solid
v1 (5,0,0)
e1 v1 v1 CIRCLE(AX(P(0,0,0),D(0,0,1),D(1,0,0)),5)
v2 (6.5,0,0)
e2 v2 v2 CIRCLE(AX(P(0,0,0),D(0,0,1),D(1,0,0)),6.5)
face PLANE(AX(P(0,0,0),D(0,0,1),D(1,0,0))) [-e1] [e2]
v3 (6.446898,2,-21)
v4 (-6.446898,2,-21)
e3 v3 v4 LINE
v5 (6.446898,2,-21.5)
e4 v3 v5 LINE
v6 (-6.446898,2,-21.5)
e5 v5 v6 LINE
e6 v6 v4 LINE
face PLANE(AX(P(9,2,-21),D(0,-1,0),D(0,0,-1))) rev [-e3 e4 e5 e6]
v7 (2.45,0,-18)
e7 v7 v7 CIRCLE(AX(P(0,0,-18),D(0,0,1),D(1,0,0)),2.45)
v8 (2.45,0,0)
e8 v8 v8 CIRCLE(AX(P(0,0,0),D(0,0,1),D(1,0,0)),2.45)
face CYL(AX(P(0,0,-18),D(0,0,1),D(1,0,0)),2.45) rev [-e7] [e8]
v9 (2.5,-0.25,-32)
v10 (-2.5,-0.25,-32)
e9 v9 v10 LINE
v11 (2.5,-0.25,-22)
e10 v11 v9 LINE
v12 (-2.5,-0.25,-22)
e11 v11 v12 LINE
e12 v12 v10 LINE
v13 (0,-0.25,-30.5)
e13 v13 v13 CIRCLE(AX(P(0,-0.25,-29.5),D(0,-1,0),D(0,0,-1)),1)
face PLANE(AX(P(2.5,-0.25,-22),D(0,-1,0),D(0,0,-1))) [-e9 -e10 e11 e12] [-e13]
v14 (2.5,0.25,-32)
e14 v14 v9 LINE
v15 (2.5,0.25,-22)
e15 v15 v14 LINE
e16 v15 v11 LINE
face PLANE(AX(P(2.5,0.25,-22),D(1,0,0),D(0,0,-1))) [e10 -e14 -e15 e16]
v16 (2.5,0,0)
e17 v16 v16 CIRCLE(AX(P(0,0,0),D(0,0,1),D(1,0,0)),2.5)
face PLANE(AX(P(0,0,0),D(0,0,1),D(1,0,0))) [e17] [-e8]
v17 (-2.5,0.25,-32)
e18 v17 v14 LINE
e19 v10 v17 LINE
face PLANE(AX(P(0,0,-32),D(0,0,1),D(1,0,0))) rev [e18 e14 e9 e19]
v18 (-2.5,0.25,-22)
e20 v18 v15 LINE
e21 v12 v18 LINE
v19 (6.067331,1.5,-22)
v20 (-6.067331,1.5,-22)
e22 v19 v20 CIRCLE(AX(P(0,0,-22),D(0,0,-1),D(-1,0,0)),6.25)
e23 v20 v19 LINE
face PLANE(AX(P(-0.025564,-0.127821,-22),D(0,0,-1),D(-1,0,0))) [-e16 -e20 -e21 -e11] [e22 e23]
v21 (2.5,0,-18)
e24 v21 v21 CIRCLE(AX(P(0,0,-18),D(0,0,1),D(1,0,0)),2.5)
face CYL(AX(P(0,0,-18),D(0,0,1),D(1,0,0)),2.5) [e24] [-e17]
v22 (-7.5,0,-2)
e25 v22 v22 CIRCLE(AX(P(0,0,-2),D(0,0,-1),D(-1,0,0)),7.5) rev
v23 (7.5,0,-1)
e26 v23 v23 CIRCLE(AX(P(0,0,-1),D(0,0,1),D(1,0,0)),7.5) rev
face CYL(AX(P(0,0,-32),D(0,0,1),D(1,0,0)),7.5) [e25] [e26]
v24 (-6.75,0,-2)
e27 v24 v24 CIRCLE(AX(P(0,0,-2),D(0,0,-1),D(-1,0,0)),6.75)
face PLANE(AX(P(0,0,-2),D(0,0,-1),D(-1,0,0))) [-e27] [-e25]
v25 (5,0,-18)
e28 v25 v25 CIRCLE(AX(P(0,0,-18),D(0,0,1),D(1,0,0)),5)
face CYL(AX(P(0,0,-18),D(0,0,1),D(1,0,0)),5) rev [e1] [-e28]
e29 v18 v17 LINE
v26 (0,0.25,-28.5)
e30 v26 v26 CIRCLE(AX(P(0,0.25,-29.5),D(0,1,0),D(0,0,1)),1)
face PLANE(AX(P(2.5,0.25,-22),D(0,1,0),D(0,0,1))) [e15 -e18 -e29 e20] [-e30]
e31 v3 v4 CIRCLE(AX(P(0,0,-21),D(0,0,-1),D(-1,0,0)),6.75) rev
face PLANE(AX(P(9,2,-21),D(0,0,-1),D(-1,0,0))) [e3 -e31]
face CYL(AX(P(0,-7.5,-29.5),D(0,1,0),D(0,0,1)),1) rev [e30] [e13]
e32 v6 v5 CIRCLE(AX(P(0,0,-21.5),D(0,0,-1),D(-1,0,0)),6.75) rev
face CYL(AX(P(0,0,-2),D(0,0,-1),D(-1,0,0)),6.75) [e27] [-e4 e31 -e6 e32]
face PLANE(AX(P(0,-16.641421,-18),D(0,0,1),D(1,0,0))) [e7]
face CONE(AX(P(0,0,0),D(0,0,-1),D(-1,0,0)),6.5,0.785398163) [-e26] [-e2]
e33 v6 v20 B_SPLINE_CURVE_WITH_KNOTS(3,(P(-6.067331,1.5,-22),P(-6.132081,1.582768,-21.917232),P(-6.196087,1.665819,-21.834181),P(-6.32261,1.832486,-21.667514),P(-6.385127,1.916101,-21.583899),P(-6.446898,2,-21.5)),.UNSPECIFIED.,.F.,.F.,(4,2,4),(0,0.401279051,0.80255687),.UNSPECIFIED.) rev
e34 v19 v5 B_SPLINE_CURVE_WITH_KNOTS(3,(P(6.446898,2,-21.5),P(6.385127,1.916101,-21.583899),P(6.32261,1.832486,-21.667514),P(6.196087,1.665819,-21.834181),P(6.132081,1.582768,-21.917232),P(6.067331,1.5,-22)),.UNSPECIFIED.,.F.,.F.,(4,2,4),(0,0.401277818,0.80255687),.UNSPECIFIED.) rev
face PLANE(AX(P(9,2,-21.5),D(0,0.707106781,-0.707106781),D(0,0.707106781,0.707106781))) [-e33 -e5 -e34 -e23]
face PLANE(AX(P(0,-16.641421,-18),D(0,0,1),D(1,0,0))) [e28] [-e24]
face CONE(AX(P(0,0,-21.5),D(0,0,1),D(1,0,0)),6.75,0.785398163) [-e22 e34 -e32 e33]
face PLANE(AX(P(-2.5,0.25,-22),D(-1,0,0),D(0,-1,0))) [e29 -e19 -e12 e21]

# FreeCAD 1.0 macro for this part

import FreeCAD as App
import Part
import Sketcher
from FreeCAD import Vector


def edges_at(feature, points):
    """Names of the edges that pass closest to the given points."""
    edges = feature.Shape.Edges
    near = lambda p: min(range(len(edges)), key=lambda i: edges[i].distToShape(Part.Vertex(*p))[0])
    return sorted({f"Edge{near(p) + 1}" for p in points})

doc = App.newDocument("Part")
params = doc.addObject("Spreadsheet::Sheet", "Params")
for row, (alias, value) in enumerate([
    ("sketch1_diameter", "15 mm"),
    ("pad1_length", "32 mm"),
    ("sketch2_diameter", "10 mm"),
    ("sketch2_diameter2", "5 mm"),
    ("sketch2_diameter3", "4.9 mm"),
    ("pocket1_length", "18 mm"),
    ("sketch3_diameter", "13.5 mm"),
    ("pocket2_length", "30 mm"),
    ("sketch4_width", "5 mm"),
    ("sketch4_height", "0.5 mm"),
    ("pocket3_length", "10 mm"),
    ("sketch5_width", "18 mm"),
    ("sketch5_height", "6 mm"),
    ("pocket4_length", "1 mm"),
    ("sketch6_diameter", "2 mm"),
    ("chamfer_size", "1 mm"),
    ("chamfer2_size", "0.5 mm"),
], start=1):
    params.set(f"A{row}", alias)
    params.set(f"B{row}", "=" + value)
    params.setAlias(f"B{row}", alias)

body = doc.addObject("PartDesign::Body", "Body")

# Sketch on XY plane
sketch1 = doc.addObject("Sketcher::SketchObject", "Sketch")
body.addObject(sketch1)
sketch1.AttachmentSupport = (doc.XY_Plane, [""])
sketch1.MapMode = "FlatFace"
sketch1.addGeometry(Part.Circle(Vector(0, 0, 0), Vector(0, 0, 1), 7.5), False)
sketch1.addConstraint(Sketcher.Constraint("Coincident", 0, 3, -1, 1))
sketch1.addConstraint(Sketcher.Constraint("Diameter", 0, 15.0))
sketch1.setExpression("Constraints[1]", "Params.sketch1_diameter")
pad1 = doc.addObject("PartDesign::Pad", "Pad")
body.addObject(pad1)
pad1.Profile = sketch1
pad1.setExpression("Length", "Params.pad1_length")
pad1.Reversed = True

# Sketch on XY plane
sketch2 = doc.addObject("Sketcher::SketchObject", "Sketch001")
body.addObject(sketch2)
sketch2.AttachmentSupport = (doc.XY_Plane, [""])
sketch2.MapMode = "FlatFace"
sketch2.addGeometry(Part.Circle(Vector(0, 0, 0), Vector(0, 0, 1), 5), False)
sketch2.addGeometry(Part.Circle(Vector(0, 0, 0), Vector(0, 0, 1), 2.5), False)
sketch2.addGeometry(Part.Circle(Vector(0, 0, 0), Vector(0, 0, 1), 2.45), False)
sketch2.addConstraint(Sketcher.Constraint("Coincident", 0, 3, -1, 1))
sketch2.addConstraint(Sketcher.Constraint("Coincident", 1, 3, -1, 1))
sketch2.addConstraint(Sketcher.Constraint("Coincident", 2, 3, -1, 1))
sketch2.addConstraint(Sketcher.Constraint("Diameter", 0, 10.0))
sketch2.addConstraint(Sketcher.Constraint("Diameter", 1, 5.0))
sketch2.addConstraint(Sketcher.Constraint("Diameter", 2, 4.9))
sketch2.setExpression("Constraints[3]", "Params.sketch2_diameter")
sketch2.setExpression("Constraints[4]", "Params.sketch2_diameter2")
sketch2.setExpression("Constraints[5]", "Params.sketch2_diameter3")
pocket1 = doc.addObject("PartDesign::Pocket", "Pocket")
body.addObject(pocket1)
pocket1.Profile = sketch2
pocket1.setExpression("Length", "Params.pocket1_length")

# Sketch on XY plane
sketch3 = doc.addObject("Sketcher::SketchObject", "Sketch002")
body.addObject(sketch3)
sketch3.AttachmentSupport = (doc.XY_Plane, [""])
sketch3.MapMode = "FlatFace"
sketch3.AttachmentOffset = App.Placement(Vector(0, 0, -32), App.Rotation())
sketch3.addGeometry(Part.LineSegment(Vector(12.339, 12.339, 0), Vector(12.339, -12.339, 0)), False)
sketch3.addGeometry(Part.LineSegment(Vector(12.339, -12.339, 0), Vector(-12.339, -12.339, 0)), False)
sketch3.addGeometry(Part.LineSegment(Vector(-12.339, -12.339, 0), Vector(-12.339, 12.339, 0)), False)
sketch3.addGeometry(Part.LineSegment(Vector(-12.339, 12.339, 0), Vector(12.339, 12.339, 0)), False)
sketch3.addGeometry(Part.Circle(Vector(0, 0, 0), Vector(0, 0, 1), 6.75), False)
sketch3.addConstraint(Sketcher.Constraint("Coincident", 0, 2, 1, 1))
sketch3.addConstraint(Sketcher.Constraint("Coincident", 1, 2, 2, 1))
sketch3.addConstraint(Sketcher.Constraint("Coincident", 2, 2, 3, 1))
sketch3.addConstraint(Sketcher.Constraint("Coincident", 3, 2, 0, 1))
sketch3.addConstraint(Sketcher.Constraint("Vertical", 0))
sketch3.addConstraint(Sketcher.Constraint("Horizontal", 1))
sketch3.addConstraint(Sketcher.Constraint("Vertical", 2))
sketch3.addConstraint(Sketcher.Constraint("Horizontal", 3))
sketch3.addConstraint(Sketcher.Constraint("Coincident", 4, 3, -1, 1))
sketch3.addConstraint(Sketcher.Constraint("Symmetric", 0, 2, 2, 2, -1, 1))
sketch3.addConstraint(Sketcher.Constraint("Equal", 3, 0))
sketch3.addConstraint(Sketcher.Constraint("Diameter", 4, 13.5))
sketch3.addConstraint(Sketcher.Constraint("DistanceX", 1, 2, 1, 1, 24.678))
sketch3.setExpression("Constraints[11]", "Params.sketch3_diameter")
pocket2 = doc.addObject("PartDesign::Pocket", "Pocket001")
body.addObject(pocket2)
pocket2.Profile = sketch3
pocket2.setExpression("Length", "Params.pocket2_length")
pocket2.Reversed = True

# Sketch on XY plane
sketch4 = doc.addObject("Sketcher::SketchObject", "Sketch003")
body.addObject(sketch4)
sketch4.AttachmentSupport = (doc.XY_Plane, [""])
sketch4.MapMode = "FlatFace"
sketch4.AttachmentOffset = App.Placement(Vector(0, 0, -32), App.Rotation())
sketch4.addGeometry(Part.LineSegment(Vector(12.339, 12.339, 0), Vector(12.339, -12.339, 0)), False)
sketch4.addGeometry(Part.LineSegment(Vector(12.339, -12.339, 0), Vector(-12.339, -12.339, 0)), False)
sketch4.addGeometry(Part.LineSegment(Vector(-12.339, -12.339, 0), Vector(-12.339, 12.339, 0)), False)
sketch4.addGeometry(Part.LineSegment(Vector(-12.339, 12.339, 0), Vector(12.339, 12.339, 0)), False)
sketch4.addGeometry(Part.LineSegment(Vector(-2.5, -0.25, 0), Vector(2.5, -0.25, 0)), False)
sketch4.addGeometry(Part.LineSegment(Vector(2.5, -0.25, 0), Vector(2.5, 0.25, 0)), False)
sketch4.addGeometry(Part.LineSegment(Vector(2.5, 0.25, 0), Vector(-2.5, 0.25, 0)), False)
sketch4.addGeometry(Part.LineSegment(Vector(-2.5, 0.25, 0), Vector(-2.5, -0.25, 0)), False)
sketch4.addConstraint(Sketcher.Constraint("Coincident", 0, 2, 1, 1))
sketch4.addConstraint(Sketcher.Constraint("Coincident", 1, 2, 2, 1))
sketch4.addConstraint(Sketcher.Constraint("Coincident", 2, 2, 3, 1))
sketch4.addConstraint(Sketcher.Constraint("Coincident", 3, 2, 0, 1))
sketch4.addConstraint(Sketcher.Constraint("Coincident", 4, 2, 5, 1))
sketch4.addConstraint(Sketcher.Constraint("Coincident", 5, 2, 6, 1))
sketch4.addConstraint(Sketcher.Constraint("Coincident", 6, 2, 7, 1))
sketch4.addConstraint(Sketcher.Constraint("Coincident", 7, 2, 4, 1))
sketch4.addConstraint(Sketcher.Constraint("Vertical", 0))
sketch4.addConstraint(Sketcher.Constraint("Horizontal", 1))
sketch4.addConstraint(Sketcher.Constraint("Vertical", 2))
sketch4.addConstraint(Sketcher.Constraint("Horizontal", 3))
sketch4.addConstraint(Sketcher.Constraint("Horizontal", 4))
sketch4.addConstraint(Sketcher.Constraint("Vertical", 5))
sketch4.addConstraint(Sketcher.Constraint("Horizontal", 6))
sketch4.addConstraint(Sketcher.Constraint("Vertical", 7))
sketch4.addConstraint(Sketcher.Constraint("Symmetric", 0, 2, 2, 2, -1, 1))
sketch4.addConstraint(Sketcher.Constraint("Symmetric", 4, 2, 6, 2, -1, 1))
sketch4.addConstraint(Sketcher.Constraint("Equal", 3, 0))
sketch4.addConstraint(Sketcher.Constraint("DistanceX", 4, 1, 4, 2, 5.0))
sketch4.addConstraint(Sketcher.Constraint("DistanceY", 5, 1, 5, 2, 0.5))
sketch4.addConstraint(Sketcher.Constraint("DistanceX", 1, 2, 1, 1, 24.678))
sketch4.setExpression("Constraints[19]", "Params.sketch4_width")
sketch4.setExpression("Constraints[20]", "Params.sketch4_height")
pocket3 = doc.addObject("PartDesign::Pocket", "Pocket002")
body.addObject(pocket3)
pocket3.Profile = sketch4
pocket3.setExpression("Length", "Params.pocket3_length")
pocket3.Reversed = True

# Sketch on XY plane
sketch5 = doc.addObject("Sketcher::SketchObject", "Sketch004")
body.addObject(sketch5)
sketch5.AttachmentSupport = (doc.XY_Plane, [""])
sketch5.MapMode = "FlatFace"
sketch5.AttachmentOffset = App.Placement(Vector(0, 0, -22), App.Rotation())
sketch5.addGeometry(Part.LineSegment(Vector(9, 8, 0), Vector(9, 2, 0)), False)
sketch5.addGeometry(Part.LineSegment(Vector(9, 2, 0), Vector(-9, 2, 0)), False)
sketch5.addGeometry(Part.LineSegment(Vector(-9, 2, 0), Vector(-9, 8, 0)), False)
sketch5.addGeometry(Part.LineSegment(Vector(-9, 8, 0), Vector(9, 8, 0)), False)
sketch5.addConstraint(Sketcher.Constraint("Coincident", 0, 2, 1, 1))
sketch5.addConstraint(Sketcher.Constraint("Coincident", 1, 2, 2, 1))
sketch5.addConstraint(Sketcher.Constraint("Coincident", 2, 2, 3, 1))
sketch5.addConstraint(Sketcher.Constraint("Coincident", 3, 2, 0, 1))
sketch5.addConstraint(Sketcher.Constraint("Vertical", 0))
sketch5.addConstraint(Sketcher.Constraint("Horizontal", 1))
sketch5.addConstraint(Sketcher.Constraint("Vertical", 2))
sketch5.addConstraint(Sketcher.Constraint("Horizontal", 3))
sketch5.addConstraint(Sketcher.Constraint("DistanceX", 1, 2, 1, 1, 18.0))
sketch5.addConstraint(Sketcher.Constraint("DistanceY", 0, 2, 0, 1, 6.0))
sketch5.addConstraint(Sketcher.Constraint("DistanceX", -1, 1, 0, 2, 9.0))
sketch5.addConstraint(Sketcher.Constraint("DistanceY", -1, 1, 0, 2, 2.0))
sketch5.setExpression("Constraints[8]", "Params.sketch5_width")
sketch5.setExpression("Constraints[9]", "Params.sketch5_height")
pocket4 = doc.addObject("PartDesign::Pocket", "Pocket003")
body.addObject(pocket4)
pocket4.Profile = sketch5
pocket4.setExpression("Length", "Params.pocket4_length")
pocket4.Reversed = True

# Sketch on XZ plane
sketch6 = doc.addObject("Sketcher::SketchObject", "Sketch005")
body.addObject(sketch6)
sketch6.AttachmentSupport = (doc.XZ_Plane, [""])
sketch6.MapMode = "FlatFace"
sketch6.AttachmentOffset = App.Placement(Vector(0, 0, -0.25), App.Rotation())
sketch6.addGeometry(Part.Circle(Vector(0, -29.5, 0), Vector(0, 0, 1), 1), False)
sketch6.addConstraint(Sketcher.Constraint("PointOnObject", 0, 3, -2))
sketch6.addConstraint(Sketcher.Constraint("Diameter", 0, 2.0))
sketch6.addConstraint(Sketcher.Constraint("DistanceY", 0, 3, -1, 1, 29.5))
sketch6.setExpression("Constraints[1]", "Params.sketch6_diameter")
pocket5 = doc.addObject("PartDesign::Pocket", "Pocket004")
body.addObject(pocket5)
pocket5.Profile = sketch6
pocket5.Type = "ThroughAll"
pocket5.Reversed = True
doc.recompute()

chamfer = doc.addObject("PartDesign::Chamfer", "Chamfer")
body.addObject(chamfer)
chamfer.Base = (pocket5, edges_at(pocket5, [(-7.5, 0, 0)]))
chamfer.setExpression("Size", "Params.chamfer_size")
doc.recompute()

chamfer2 = doc.addObject("PartDesign::Chamfer", "Chamfer001")
body.addObject(chamfer2)
chamfer2.Base = (chamfer, edges_at(chamfer, [(1.011, -6.674, -22), (0, 2, -22)]))
chamfer2.setExpression("Size", "Params.chamfer2_size")

doc.recompute()
